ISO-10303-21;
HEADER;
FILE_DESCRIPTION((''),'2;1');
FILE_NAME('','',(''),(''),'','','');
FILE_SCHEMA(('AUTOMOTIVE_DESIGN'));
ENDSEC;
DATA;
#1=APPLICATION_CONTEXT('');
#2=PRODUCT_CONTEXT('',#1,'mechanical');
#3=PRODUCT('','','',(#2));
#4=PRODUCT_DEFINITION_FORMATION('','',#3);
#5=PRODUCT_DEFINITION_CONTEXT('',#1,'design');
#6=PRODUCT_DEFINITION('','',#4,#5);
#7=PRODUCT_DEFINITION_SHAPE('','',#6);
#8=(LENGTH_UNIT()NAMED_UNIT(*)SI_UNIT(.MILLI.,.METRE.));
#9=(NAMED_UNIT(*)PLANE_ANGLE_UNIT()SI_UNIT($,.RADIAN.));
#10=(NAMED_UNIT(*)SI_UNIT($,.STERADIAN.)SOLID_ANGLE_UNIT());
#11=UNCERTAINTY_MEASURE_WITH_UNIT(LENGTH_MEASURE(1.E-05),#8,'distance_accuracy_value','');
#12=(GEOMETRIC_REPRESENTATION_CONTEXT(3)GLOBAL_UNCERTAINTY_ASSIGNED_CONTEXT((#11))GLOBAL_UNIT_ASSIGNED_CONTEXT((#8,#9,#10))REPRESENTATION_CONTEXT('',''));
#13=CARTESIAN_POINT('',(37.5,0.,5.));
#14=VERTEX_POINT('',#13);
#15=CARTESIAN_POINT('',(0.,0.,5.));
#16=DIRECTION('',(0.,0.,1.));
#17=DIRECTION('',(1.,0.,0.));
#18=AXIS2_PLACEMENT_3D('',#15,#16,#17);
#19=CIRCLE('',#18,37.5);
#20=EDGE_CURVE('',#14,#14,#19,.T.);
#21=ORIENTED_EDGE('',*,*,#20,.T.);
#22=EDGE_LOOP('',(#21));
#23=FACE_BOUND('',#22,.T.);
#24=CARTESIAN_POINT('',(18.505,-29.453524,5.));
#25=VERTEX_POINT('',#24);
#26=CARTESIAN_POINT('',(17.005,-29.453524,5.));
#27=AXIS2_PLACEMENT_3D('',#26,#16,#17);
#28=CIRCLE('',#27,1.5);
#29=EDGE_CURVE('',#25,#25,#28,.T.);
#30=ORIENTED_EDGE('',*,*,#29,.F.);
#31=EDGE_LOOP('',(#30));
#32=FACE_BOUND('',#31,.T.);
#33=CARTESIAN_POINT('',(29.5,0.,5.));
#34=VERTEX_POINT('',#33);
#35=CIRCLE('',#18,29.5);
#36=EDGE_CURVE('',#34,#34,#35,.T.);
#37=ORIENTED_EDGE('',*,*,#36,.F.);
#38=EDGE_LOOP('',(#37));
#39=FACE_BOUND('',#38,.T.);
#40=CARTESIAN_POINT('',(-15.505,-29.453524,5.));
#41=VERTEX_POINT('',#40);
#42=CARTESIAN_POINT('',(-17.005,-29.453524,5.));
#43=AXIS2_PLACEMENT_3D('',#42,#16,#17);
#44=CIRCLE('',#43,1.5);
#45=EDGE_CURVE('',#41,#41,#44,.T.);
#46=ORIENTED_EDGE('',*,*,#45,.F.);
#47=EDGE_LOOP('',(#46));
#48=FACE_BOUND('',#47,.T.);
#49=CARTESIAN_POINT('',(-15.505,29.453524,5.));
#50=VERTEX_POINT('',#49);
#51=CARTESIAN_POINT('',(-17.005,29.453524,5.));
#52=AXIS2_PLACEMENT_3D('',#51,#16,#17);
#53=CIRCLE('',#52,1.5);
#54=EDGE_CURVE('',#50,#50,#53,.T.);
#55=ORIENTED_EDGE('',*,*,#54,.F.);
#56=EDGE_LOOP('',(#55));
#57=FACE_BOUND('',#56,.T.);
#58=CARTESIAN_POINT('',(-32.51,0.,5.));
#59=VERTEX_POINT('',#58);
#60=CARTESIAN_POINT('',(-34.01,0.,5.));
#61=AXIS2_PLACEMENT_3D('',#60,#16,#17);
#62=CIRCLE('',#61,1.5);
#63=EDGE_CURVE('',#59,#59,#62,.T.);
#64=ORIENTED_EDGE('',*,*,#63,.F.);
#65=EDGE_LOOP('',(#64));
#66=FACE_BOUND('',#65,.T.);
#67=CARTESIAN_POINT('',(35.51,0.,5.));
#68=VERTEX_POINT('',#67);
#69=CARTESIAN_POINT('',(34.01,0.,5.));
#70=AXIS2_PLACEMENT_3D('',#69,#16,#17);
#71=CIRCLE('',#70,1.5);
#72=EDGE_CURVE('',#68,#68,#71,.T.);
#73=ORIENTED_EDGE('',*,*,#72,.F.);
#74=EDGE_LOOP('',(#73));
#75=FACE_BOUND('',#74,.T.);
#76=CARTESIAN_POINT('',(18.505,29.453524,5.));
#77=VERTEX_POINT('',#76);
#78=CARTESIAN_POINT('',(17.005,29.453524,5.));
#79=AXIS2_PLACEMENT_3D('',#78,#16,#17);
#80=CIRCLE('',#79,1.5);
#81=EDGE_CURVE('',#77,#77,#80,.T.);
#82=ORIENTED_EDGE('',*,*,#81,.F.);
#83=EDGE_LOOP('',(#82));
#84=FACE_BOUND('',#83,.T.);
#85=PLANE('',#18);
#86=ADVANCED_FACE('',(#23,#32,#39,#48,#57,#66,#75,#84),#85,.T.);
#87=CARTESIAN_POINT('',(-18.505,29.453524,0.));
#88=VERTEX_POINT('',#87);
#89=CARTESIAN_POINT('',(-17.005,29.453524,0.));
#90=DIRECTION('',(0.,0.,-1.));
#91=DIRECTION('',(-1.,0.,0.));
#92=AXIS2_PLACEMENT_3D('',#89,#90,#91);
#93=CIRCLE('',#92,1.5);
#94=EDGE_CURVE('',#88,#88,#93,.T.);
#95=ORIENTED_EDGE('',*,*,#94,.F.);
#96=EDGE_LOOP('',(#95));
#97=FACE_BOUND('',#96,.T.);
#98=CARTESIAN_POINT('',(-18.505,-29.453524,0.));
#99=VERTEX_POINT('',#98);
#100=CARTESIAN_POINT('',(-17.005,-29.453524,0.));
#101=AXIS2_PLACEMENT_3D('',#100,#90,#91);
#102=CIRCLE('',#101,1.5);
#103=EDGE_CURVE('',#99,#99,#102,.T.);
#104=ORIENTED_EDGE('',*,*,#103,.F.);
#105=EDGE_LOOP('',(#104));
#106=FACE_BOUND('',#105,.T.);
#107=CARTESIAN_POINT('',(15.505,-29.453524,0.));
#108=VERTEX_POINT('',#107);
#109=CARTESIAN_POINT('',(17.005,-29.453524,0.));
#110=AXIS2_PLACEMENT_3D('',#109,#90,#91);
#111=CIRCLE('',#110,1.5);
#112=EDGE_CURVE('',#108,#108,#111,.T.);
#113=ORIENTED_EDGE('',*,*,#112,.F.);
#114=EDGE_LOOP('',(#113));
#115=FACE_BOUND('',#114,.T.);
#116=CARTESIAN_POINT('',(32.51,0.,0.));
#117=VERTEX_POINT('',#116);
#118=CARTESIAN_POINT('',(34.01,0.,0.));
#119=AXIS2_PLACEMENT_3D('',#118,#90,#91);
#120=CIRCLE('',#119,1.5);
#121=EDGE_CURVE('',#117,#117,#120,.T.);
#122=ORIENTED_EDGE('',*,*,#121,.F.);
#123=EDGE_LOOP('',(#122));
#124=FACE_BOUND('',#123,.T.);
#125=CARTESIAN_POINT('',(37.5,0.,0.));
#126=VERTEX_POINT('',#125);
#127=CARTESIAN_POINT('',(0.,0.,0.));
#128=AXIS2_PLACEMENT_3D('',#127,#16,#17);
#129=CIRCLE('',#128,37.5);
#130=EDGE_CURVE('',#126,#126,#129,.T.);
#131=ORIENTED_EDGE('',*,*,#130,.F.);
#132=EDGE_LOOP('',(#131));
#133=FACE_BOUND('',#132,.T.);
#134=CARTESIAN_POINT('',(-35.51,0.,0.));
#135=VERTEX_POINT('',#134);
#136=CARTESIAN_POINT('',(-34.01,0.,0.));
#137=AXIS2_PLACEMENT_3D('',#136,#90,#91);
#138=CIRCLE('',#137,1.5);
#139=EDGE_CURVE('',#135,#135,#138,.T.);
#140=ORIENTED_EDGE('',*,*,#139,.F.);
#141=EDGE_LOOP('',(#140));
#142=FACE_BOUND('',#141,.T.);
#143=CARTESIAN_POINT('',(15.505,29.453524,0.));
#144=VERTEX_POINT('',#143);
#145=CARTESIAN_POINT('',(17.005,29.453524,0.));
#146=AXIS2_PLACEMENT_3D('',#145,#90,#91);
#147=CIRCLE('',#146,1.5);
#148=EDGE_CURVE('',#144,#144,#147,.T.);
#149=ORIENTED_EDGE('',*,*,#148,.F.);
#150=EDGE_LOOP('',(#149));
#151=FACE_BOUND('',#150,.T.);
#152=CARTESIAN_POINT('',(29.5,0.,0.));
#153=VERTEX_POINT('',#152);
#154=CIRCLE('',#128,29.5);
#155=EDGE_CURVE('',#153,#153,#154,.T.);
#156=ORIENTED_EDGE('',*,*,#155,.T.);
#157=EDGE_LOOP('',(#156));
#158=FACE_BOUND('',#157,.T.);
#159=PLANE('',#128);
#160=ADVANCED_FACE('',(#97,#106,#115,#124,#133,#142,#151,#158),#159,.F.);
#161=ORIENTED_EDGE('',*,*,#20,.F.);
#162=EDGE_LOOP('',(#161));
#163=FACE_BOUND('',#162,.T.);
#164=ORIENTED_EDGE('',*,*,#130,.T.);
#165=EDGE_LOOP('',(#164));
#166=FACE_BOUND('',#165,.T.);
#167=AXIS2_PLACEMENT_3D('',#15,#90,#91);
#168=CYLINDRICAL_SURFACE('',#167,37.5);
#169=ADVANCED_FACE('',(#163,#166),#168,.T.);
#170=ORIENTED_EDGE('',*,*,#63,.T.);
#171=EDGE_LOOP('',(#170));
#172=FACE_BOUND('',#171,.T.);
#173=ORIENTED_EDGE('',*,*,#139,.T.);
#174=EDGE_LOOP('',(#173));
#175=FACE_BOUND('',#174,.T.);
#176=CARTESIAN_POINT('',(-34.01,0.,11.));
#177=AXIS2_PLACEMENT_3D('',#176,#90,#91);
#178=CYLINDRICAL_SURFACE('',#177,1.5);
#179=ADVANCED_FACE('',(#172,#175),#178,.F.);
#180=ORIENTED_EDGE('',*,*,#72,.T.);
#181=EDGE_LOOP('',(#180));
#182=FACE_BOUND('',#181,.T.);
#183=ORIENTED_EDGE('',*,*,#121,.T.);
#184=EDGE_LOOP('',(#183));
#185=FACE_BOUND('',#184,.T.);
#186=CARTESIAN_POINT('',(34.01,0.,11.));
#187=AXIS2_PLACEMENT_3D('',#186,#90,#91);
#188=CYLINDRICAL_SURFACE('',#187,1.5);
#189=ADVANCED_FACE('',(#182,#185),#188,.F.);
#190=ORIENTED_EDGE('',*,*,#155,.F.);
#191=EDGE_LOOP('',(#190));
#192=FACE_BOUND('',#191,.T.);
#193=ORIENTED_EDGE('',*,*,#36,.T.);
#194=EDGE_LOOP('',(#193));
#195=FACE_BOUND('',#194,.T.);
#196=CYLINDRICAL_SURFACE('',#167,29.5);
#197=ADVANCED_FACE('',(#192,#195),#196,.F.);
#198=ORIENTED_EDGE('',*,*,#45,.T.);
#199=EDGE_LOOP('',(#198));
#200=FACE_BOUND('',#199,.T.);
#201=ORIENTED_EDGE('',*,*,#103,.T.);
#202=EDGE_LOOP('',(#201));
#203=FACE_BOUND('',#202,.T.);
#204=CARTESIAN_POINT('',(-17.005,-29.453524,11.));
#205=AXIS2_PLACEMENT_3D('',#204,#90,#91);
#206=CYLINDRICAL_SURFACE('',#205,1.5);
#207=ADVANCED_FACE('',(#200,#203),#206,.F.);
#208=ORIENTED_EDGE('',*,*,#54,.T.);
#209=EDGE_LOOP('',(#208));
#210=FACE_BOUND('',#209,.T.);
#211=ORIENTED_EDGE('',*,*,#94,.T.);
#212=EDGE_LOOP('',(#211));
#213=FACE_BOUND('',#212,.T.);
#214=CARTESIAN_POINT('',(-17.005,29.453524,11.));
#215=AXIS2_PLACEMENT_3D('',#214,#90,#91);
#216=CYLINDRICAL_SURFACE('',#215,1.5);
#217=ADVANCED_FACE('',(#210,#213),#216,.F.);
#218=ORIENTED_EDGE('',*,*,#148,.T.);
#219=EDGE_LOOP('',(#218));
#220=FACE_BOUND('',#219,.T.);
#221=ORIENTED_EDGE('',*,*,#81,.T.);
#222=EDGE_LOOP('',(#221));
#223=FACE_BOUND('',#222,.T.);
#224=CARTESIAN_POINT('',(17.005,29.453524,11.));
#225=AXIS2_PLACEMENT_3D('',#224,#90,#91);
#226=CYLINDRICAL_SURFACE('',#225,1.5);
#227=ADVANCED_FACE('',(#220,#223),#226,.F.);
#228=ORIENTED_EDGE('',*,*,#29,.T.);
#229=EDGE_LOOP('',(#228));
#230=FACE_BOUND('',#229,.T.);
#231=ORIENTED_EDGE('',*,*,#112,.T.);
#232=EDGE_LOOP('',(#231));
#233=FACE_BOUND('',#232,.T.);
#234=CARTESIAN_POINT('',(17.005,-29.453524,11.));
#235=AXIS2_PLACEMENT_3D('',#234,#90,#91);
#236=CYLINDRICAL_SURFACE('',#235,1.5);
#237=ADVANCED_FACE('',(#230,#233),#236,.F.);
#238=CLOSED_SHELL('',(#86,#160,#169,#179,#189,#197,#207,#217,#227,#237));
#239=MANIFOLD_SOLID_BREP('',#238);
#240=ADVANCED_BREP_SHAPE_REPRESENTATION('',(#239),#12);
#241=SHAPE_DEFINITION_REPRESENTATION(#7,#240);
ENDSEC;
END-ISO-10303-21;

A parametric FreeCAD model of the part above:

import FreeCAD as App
import Part
import Sketcher

V = App.Vector
Q = App.Units.Quantity

doc = App.newDocument("Part")
body = doc.addObject("PartDesign::Body", "Body")

# Sketch on XY plane
sketch1 = body.newObject("Sketcher::SketchObject", "Sketch")
sketch1.AttachmentSupport = (doc.getObject("XY_Plane"), [""])
sketch1.MapMode = "FlatFace"
sketch1.addGeometry([
    Part.Circle(V(0, 0, 0), V(0, 0, 1), 38),
    Part.Circle(V(0, 0, 0), V(0, 0, 1), 30),
], False)
sketch1.addConstraint([
    Sketcher.Constraint("Coincident", 0, 3, -1, 1),
    Sketcher.Constraint("Coincident", 1, 3, -1, 1),
    Sketcher.Constraint("Diameter", 0, Q("75 mm")),
    Sketcher.Constraint("Diameter", 1, Q("59 mm")),
])
pad1 = body.newObject("PartDesign::Pad", "Pad")
pad1.Profile = sketch1
pad1.Length = 5

# Sketch on XY plane
sketch2 = body.newObject("Sketcher::SketchObject", "Sketch001")
sketch2.AttachmentSupport = (doc.getObject("XY_Plane"), [""])
sketch2.MapMode = "FlatFace"
sketch2.addGeometry([
    Part.Circle(V(17, 29.5, 0), V(0, 0, 1), 1.5),  # 0
    Part.Circle(V(-17, 29.5, 0), V(0, 0, 1), 1.5),  # 1
    Part.Circle(V(-34, 0, 0), V(0, 0, 1), 1.5),  # 2
    Part.Circle(V(-17, -29.5, 0), V(0, 0, 1), 1.5),  # 3
    Part.Circle(V(17, -29.5, 0), V(0, 0, 1), 1.5),  # 4
    Part.Circle(V(34, 0, 0), V(0, 0, 1), 1.5),  # 5
], False)
sketch2.addConstraint([
    Sketcher.Constraint("Equal", 0, 1),
    Sketcher.Constraint("Equal", 1, 2),
    Sketcher.Constraint("Equal", 2, 3),
    Sketcher.Constraint("Equal", 3, 4),
    Sketcher.Constraint("Equal", 4, 5),
    Sketcher.Constraint("Symmetric", 0, 3, 3, 3, -1, 1),
    Sketcher.Constraint("Symmetric", 1, 3, 4, 3, -1, 1),
    Sketcher.Constraint("Symmetric", 2, 3, 5, 3, -1, 1),
    Sketcher.Constraint("Symmetric", 0, 3, 1, 3, -2),
    Sketcher.Constraint("PointOnObject", 2, 3, -1),
    Sketcher.Constraint("Diameter", 0, Q("3 mm")),
    Sketcher.Constraint("DistanceX", 2, 3, -1, 1, Q("34.01 mm")),
    Sketcher.Constraint("DistanceX", 1, 3, 0, 3, Q("34.01 mm")),
    Sketcher.Constraint("DistanceY", -1, 1, 0, 3, Q("29.453524 mm")),
])
pocket1 = body.newObject("PartDesign::Pocket", "Pocket")
pocket1.Profile = sketch2
pocket1.Length = 11
pocket1.Reversed = True

doc.recompute()
